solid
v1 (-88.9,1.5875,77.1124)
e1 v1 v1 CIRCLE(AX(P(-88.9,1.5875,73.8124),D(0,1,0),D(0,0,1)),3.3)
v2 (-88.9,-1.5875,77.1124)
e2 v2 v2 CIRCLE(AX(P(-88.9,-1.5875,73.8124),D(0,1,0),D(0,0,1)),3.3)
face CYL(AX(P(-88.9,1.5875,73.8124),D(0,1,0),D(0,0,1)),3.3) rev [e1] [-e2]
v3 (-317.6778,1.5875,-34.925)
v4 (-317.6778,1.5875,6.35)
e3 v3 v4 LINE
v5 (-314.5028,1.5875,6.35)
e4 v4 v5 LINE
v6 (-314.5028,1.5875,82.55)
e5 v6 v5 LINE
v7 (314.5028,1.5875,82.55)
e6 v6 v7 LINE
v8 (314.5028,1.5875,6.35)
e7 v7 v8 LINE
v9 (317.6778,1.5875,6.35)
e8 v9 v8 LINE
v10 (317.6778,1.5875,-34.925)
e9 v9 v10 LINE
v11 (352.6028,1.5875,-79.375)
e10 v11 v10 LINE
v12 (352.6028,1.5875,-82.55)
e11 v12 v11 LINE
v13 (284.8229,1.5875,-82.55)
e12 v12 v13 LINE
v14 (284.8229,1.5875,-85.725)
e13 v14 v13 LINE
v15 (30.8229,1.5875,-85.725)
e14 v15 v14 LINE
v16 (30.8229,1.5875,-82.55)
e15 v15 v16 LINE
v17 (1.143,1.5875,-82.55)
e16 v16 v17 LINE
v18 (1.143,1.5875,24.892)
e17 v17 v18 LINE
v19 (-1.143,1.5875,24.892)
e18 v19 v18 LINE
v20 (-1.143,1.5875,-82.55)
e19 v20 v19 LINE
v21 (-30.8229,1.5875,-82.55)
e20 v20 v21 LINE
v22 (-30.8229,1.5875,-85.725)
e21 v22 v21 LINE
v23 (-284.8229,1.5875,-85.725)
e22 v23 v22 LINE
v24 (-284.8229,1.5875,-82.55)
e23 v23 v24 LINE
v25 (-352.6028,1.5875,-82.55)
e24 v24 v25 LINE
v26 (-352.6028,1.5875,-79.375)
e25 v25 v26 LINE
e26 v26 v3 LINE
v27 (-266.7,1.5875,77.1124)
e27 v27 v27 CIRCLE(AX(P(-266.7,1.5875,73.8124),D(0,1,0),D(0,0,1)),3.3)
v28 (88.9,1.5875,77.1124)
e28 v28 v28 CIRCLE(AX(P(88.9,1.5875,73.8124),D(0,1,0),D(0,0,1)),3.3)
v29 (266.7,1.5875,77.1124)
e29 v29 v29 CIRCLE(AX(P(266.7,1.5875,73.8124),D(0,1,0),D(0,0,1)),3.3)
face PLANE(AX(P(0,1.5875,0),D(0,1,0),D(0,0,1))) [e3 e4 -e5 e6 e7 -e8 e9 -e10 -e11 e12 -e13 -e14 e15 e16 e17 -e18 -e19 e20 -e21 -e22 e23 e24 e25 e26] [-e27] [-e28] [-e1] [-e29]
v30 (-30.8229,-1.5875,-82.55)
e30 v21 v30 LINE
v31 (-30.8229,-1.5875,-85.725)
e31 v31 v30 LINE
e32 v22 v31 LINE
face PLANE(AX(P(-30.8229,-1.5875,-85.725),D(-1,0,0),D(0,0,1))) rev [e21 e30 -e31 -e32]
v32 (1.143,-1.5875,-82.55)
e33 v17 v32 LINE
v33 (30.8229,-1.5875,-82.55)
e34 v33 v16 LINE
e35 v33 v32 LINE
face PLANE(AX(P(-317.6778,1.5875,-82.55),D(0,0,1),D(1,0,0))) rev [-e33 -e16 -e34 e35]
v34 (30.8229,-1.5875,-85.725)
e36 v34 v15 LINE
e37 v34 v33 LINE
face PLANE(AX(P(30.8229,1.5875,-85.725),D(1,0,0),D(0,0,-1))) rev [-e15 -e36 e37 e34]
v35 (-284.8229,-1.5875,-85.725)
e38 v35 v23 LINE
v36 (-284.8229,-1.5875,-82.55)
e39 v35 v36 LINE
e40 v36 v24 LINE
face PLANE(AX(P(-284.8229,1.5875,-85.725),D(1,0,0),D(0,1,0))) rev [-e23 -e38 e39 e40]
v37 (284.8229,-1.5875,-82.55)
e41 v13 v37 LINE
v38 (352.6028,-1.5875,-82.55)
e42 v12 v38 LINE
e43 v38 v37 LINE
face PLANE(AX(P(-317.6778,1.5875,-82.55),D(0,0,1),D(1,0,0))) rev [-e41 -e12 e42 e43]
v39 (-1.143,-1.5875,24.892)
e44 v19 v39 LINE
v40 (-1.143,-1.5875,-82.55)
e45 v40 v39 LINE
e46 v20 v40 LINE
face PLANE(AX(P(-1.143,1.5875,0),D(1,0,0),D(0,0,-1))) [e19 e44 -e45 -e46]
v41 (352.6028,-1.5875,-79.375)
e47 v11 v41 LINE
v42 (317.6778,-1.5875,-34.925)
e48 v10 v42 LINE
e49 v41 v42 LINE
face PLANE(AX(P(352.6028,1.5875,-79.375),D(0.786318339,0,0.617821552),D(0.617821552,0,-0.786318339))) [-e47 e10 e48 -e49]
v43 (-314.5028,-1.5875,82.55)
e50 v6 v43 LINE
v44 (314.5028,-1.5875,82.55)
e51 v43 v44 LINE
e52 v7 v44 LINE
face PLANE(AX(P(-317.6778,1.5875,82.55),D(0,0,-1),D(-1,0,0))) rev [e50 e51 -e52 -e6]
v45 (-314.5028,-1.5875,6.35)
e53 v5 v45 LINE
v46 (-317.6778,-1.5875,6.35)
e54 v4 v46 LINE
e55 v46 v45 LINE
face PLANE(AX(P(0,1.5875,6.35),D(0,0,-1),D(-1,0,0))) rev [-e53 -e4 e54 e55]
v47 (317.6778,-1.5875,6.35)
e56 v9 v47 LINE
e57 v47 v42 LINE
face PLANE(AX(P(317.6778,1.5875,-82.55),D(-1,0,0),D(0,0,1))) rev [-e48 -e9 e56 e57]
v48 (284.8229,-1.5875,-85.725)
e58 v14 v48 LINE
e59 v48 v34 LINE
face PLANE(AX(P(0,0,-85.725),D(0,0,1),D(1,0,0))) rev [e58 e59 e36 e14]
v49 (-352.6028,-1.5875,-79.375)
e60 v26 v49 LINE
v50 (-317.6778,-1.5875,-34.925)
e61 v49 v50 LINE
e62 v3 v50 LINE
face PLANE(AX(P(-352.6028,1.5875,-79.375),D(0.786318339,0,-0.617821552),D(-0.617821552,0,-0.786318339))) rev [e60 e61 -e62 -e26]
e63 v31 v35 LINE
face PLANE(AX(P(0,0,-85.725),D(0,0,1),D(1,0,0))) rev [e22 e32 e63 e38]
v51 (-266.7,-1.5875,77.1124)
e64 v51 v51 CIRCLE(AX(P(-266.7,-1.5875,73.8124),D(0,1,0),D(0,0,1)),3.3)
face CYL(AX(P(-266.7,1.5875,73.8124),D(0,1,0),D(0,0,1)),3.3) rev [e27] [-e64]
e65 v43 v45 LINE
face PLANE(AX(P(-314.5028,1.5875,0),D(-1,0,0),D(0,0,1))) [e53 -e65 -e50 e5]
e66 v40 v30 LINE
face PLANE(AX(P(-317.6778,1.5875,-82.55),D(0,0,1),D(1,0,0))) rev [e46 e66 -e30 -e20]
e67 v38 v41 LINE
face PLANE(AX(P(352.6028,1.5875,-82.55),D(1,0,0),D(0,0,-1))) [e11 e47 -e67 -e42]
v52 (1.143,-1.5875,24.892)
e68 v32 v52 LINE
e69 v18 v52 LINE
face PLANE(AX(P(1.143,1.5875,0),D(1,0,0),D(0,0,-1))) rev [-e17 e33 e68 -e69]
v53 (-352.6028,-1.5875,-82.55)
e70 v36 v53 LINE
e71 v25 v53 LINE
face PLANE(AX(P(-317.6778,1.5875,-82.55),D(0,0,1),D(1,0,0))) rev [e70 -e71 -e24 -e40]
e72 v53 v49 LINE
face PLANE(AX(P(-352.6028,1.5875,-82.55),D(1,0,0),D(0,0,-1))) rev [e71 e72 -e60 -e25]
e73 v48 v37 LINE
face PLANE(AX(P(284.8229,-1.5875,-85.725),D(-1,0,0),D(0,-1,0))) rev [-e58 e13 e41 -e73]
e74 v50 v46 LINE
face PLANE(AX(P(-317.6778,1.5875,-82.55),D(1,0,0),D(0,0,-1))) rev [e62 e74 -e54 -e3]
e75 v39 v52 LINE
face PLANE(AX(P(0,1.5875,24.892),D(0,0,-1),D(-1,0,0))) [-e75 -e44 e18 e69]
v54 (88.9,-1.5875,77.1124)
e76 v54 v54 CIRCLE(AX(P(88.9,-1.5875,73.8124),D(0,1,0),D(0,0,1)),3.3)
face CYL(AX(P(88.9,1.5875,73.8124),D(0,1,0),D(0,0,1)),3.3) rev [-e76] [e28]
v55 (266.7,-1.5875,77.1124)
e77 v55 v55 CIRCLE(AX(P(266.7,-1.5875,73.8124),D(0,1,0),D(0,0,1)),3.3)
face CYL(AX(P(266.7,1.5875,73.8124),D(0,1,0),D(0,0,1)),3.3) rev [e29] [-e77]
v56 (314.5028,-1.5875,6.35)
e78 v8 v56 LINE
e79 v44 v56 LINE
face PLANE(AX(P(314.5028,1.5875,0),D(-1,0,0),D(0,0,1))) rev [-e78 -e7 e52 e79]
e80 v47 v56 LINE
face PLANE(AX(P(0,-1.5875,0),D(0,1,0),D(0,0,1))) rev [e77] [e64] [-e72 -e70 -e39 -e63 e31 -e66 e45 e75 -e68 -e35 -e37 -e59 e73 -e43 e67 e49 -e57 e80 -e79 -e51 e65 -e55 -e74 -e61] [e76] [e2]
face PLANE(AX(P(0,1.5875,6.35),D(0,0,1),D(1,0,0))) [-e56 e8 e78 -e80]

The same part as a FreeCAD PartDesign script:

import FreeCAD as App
import Part
import Sketcher
Q = App.Units.Quantity

doc = App.newDocument("Part")
body = doc.addObject("PartDesign::Body", "Body")

# Sketch on XZ plane
sketch1 = body.newObject("Sketcher::SketchObject", "Sketch")
sketch1.AttachmentSupport = (doc.getObject("XZ_Plane"), [""])
sketch1.MapMode = "FlatFace"
sketch1.addGeometry([
    Part.LineSegment(App.Vector(-318, -83, 0), App.Vector(-318, 83, 0)),
    Part.LineSegment(App.Vector(-318, 83, 0), App.Vector(318, 83, 0)),
    Part.LineSegment(App.Vector(318, 83, 0), App.Vector(318, -83, 0)),
    Part.LineSegment(App.Vector(318, -83, 0), App.Vector(-318, -83, 0)),
], False)
sketch1.addConstraint([
    Sketcher.Constraint("Coincident", 0, 2, 1, 1),
    Sketcher.Constraint("Coincident", 1, 2, 2, 1),
    Sketcher.Constraint("Coincident", 2, 2, 3, 1),
    Sketcher.Constraint("Coincident", 3, 2, 0, 1),
    Sketcher.Constraint("Vertical", 0),
    Sketcher.Constraint("Horizontal", 1),
    Sketcher.Constraint("Vertical", 2),
    Sketcher.Constraint("Horizontal", 3),
    Sketcher.Constraint("Symmetric", 0, 2, 2, 2, -1, 1),
    Sketcher.Constraint("DistanceY", 0, 1, 0, 2, Q("6.5 in")),
    Sketcher.Constraint("DistanceX", 1, 1, 1, 2, Q("25.014 in")),
])
pad1 = body.newObject("PartDesign::Pad", "Pad")
pad1.Profile = sketch1
pad1.Length = Q("0.125 in")
pad1.Midplane = True

# Sketch on XY plane
sketch2 = body.newObject("Sketcher::SketchObject", "Sketch001")
sketch2.AttachmentSupport = (doc.getObject("XY_Plane"), [""])
sketch2.MapMode = "FlatFace"
sketch2.AttachmentOffset = App.Placement(App.Vector(0, 0, -3.25 * 25.4), App.Rotation())
sketch2.addGeometry([
    Part.LineSegment(App.Vector(284.8, 1.6, 0), App.Vector(284.8, -1.6, 0)),  # 0
    Part.LineSegment(App.Vector(284.8, -1.6, 0), App.Vector(30.8, -1.6, 0)),  # 1
    Part.LineSegment(App.Vector(30.8, -1.6, 0), App.Vector(30.8, 1.6, 0)),  # 2
    Part.LineSegment(App.Vector(30.8, 1.6, 0), App.Vector(284.8, 1.6, 0)),  # 3
    Part.LineSegment(App.Vector(-30.8, 1.6, 0), App.Vector(-30.8, -1.6, 0)),  # 4
    Part.LineSegment(App.Vector(-30.8, -1.6, 0), App.Vector(-284.8, -1.6, 0)),  # 5
    Part.LineSegment(App.Vector(-284.8, -1.6, 0), App.Vector(-284.8, 1.6, 0)),  # 6
    Part.LineSegment(App.Vector(-284.8, 1.6, 0), App.Vector(-30.8, 1.6, 0)),  # 7
], False)
sketch2.addConstraint([
    Sketcher.Constraint("Coincident", 0, 2, 1, 1),
    Sketcher.Constraint("Coincident", 1, 2, 2, 1),
    Sketcher.Constraint("Coincident", 2, 2, 3, 1),
    Sketcher.Constraint("Coincident", 3, 2, 0, 1),
    Sketcher.Constraint("Coincident", 4, 2, 5, 1),
    Sketcher.Constraint("Coincident", 5, 2, 6, 1),
    Sketcher.Constraint("Coincident", 6, 2, 7, 1),
    Sketcher.Constraint("Coincident", 7, 2, 4, 1),
    Sketcher.Constraint("Vertical", 0),
    Sketcher.Constraint("Horizontal", 1),
    Sketcher.Constraint("Vertical", 2),
    Sketcher.Constraint("Horizontal", 3),
    Sketcher.Constraint("Vertical", 4),
    Sketcher.Constraint("Horizontal", 5),
    Sketcher.Constraint("Vertical", 6),
    Sketcher.Constraint("Horizontal", 7),
    Sketcher.Constraint("Symmetric", 2, 2, 4, 2, -1, 1),
    Sketcher.Constraint("Symmetric", 0, 2, 6, 2, -1, 1),
    Sketcher.Constraint("Horizontal", 1, 2, 4, 2),
    Sketcher.Constraint("DistanceX", 1, 2, 1, 1, Q("10 in")),
    Sketcher.Constraint("DistanceY", 0, 2, 0, 1, Q("0.125 in")),
    Sketcher.Constraint("DistanceX", 4, 2, 1, 2, Q("2.427 in")),
])
pad2 = body.newObject("PartDesign::Pad", "Pad001")
pad2.Profile = sketch2
pad2.Length = Q("0.125 in")
pad2.Reversed = True

# Sketch on XZ plane
sketch3 = body.newObject("Sketcher::SketchObject", "Sketch002")
sketch3.AttachmentSupport = (doc.getObject("XZ_Plane"), [""])
sketch3.MapMode = "FlatFace"
sketch3.AttachmentOffset = App.Placement(App.Vector(0, 0, 0.0625 * 25.4), App.Rotation())
sketch3.addGeometry([
    Part.LineSegment(App.Vector(317.7, -82.5, 0), App.Vector(352.6, -82.5, 0)),
    Part.LineSegment(App.Vector(352.6, -82.5, 0), App.Vector(352.6, -79.4, 0)),
    Part.LineSegment(App.Vector(352.6, -79.4, 0), App.Vector(317.7, -34.9, 0)),
    Part.LineSegment(App.Vector(317.7, -34.9, 0), App.Vector(317.7, -82.5, 0)),
], False)
sketch3.addConstraint([
    Sketcher.Constraint("Coincident", 0, 2, 1, 1),
    Sketcher.Constraint("Coincident", 1, 2, 2, 1),
    Sketcher.Constraint("Coincident", 2, 2, 3, 1),
    Sketcher.Constraint("Coincident", 3, 2, 0, 1),
    Sketcher.Constraint("Horizontal", 0),
    Sketcher.Constraint("Vertical", 1),
    Sketcher.Constraint("Vertical", 3),
    Sketcher.Constraint("DistanceX", 0, 1, 0, 2, Q("1.375 in")),
    Sketcher.Constraint("DistanceY", 1, 1, 1, 2, Q("0.125 in")),
    Sketcher.Constraint("DistanceY", 3, 2, 3, 1, Q("1.875 in")),
    Sketcher.Constraint("DistanceY", 0, 2, -1, 1, Q("3.25 in")),
    Sketcher.Constraint("DistanceX", -1, 1, 0, 2, Q("13.882 in")),
])
pad3 = body.newObject("PartDesign::Pad", "Pad002")
pad3.Profile = sketch3
pad3.Length = Q("0.125 in")
pad3.Reversed = True
doc.recompute()

mirrored = body.newObject("PartDesign::Mirrored", "Mirrored")
mirrored.Originals = [pad3]
mirrored.MirrorPlane = (doc.getObject("YZ_Plane"), [""])
body.Tip = mirrored

# Sketch on XZ plane
sketch4 = body.newObject("Sketcher::SketchObject", "Sketch003")
sketch4.AttachmentSupport = (doc.getObject("XZ_Plane"), [""])
sketch4.MapMode = "FlatFace"
sketch4.AttachmentOffset = App.Placement(App.Vector(0, 0, 0.0625 * 25.4), App.Rotation())
sketch4.addGeometry([
    Part.LineSegment(App.Vector(314.5, 82.5, 0), App.Vector(314.5, 6.3, 0)),  # 0
    Part.LineSegment(App.Vector(314.5, 6.3, 0), App.Vector(317.7, 6.3, 0)),  # 1
    Part.LineSegment(App.Vector(317.7, 6.3, 0), App.Vector(317.7, 82.5, 0)),  # 2
    Part.LineSegment(App.Vector(317.7, 82.5, 0), App.Vector(314.5, 82.5, 0)),  # 3
    Part.LineSegment(App.Vector(-317.7, 82.5, 0), App.Vector(-317.7, 6.3, 0)),  # 4
    Part.LineSegment(App.Vector(-317.7, 6.3, 0), App.Vector(-314.5, 6.3, 0)),  # 5
    Part.LineSegment(App.Vector(-314.5, 6.3, 0), App.Vector(-314.5, 82.5, 0)),  # 6
    Part.LineSegment(App.Vector(-314.5, 82.5, 0), App.Vector(-317.7, 82.5, 0)),  # 7
    Part.LineSegment(App.Vector(-1.1, 24.9, 0), App.Vector(-1.1, -82.5, 0)),  # 8
    Part.LineSegment(App.Vector(-1.1, -82.5, 0), App.Vector(1.1, -82.5, 0)),  # 9
    Part.LineSegment(App.Vector(1.1, -82.5, 0), App.Vector(1.1, 24.9, 0)),  # 10
    Part.LineSegment(App.Vector(1.1, 24.9, 0), App.Vector(-1.1, 24.9, 0)),  # 11
], False)
sketch4.addConstraint([
    Sketcher.Constraint("Coincident", 0, 2, 1, 1),
    Sketcher.Constraint("Coincident", 1, 2, 2, 1),
    Sketcher.Constraint("Coincident", 2, 2, 3, 1),
    Sketcher.Constraint("Coincident", 3, 2, 0, 1),
    Sketcher.Constraint("Coincident", 4, 2, 5, 1),
    Sketcher.Constraint("Coincident", 5, 2, 6, 1),
    Sketcher.Constraint("Coincident", 6, 2, 7, 1),
    Sketcher.Constraint("Coincident", 7, 2, 4, 1),
    Sketcher.Constraint("Coincident", 8, 2, 9, 1),
    Sketcher.Constraint("Coincident", 9, 2, 10, 1),
    Sketcher.Constraint("Coincident", 10, 2, 11, 1),
    Sketcher.Constraint("Coincident", 11, 2, 8, 1),
    Sketcher.Constraint("Vertical", 0),
    Sketcher.Constraint("Horizontal", 1),
    Sketcher.Constraint("Vertical", 2),
    Sketcher.Constraint("Horizontal", 3),
    Sketcher.Constraint("Vertical", 4),
    Sketcher.Constraint("Horizontal", 5),
    Sketcher.Constraint("Vertical", 6),
    Sketcher.Constraint("Horizontal", 7),
    Sketcher.Constraint("Vertical", 8),
    Sketcher.Constraint("Horizontal", 9),
    Sketcher.Constraint("Vertical", 10),
    Sketcher.Constraint("Horizontal", 11),
    Sketcher.Constraint("Symmetric", 1, 2, 4, 2, -2),
    Sketcher.Constraint("Symmetric", 3, 2, 6, 2, -2),
    Sketcher.Constraint("DistanceY", 0, 2, 0, 1, Q("3 in")),
    Sketcher.Constraint("DistanceX", 9, 1, 9, 2, Q("0.09 in")),
    Sketcher.Constraint("DistanceY", 8, 2, 8, 1, Q("4.23 in")),
    Sketcher.Constraint("DistanceY", 8, 2, 5, 2, Q("3.5 in")),
    Sketcher.Constraint("DistanceX", 1, 1, 1, 2, Q("0.125 in")),
    Sketcher.Constraint("DistanceY", -1, 1, 0, 2, Q("0.25 in")),
    Sketcher.Constraint("DistanceX", -1, 1, 0, 2, Q("12.382 in")),
    Sketcher.Constraint("DistanceX", 8, 2, -1, 1, Q("0.045 in")),
])
pocket1 = body.newObject("PartDesign::Pocket", "Pocket")
pocket1.Profile = sketch4
pocket1.Type = "ThroughAll"

# Sketch on XZ plane
sketch5 = body.newObject("Sketcher::SketchObject", "Sketch004")
sketch5.AttachmentSupport = (doc.getObject("XZ_Plane"), [""])
sketch5.MapMode = "FlatFace"
sketch5.AttachmentOffset = App.Placement(App.Vector(0, 0, -0.0625 * 25.4), App.Rotation())
sketch5.addGeometry(Part.Circle(App.Vector(266.7, 73.8, 0), App.Vector(0, 0, 1), 3.3), False)
sketch5.addConstraint([
    Sketcher.Constraint("DistanceX", -1, 1, 0, 3, Q("10.5 in")),
    Sketcher.Constraint("Diameter", 0, Q("6.6 mm")),
    Sketcher.Constraint("DistanceY", -1, 1, 0, 3, Q("2.906 in")),
])
doc.recompute()
hole = body.newObject("PartDesign::Hole", "Hole")
hole.Profile = sketch5
hole.ThreadType = "None"
hole.Diameter = 6.6
hole.DepthType = "ThroughAll"
hole.Reversed = True
doc.recompute()

linearpattern = body.newObject("PartDesign::LinearPattern", "LinearPattern")
linearpattern.Originals = [hole]
linearpattern.Direction = (doc.getObject("X_Axis"), [""])
linearpattern.Mode = "offset"
linearpattern.Offset = Q("7 in")
linearpattern.Occurrences = 4
linearpattern.Reversed = True
body.Tip = linearpattern

doc.recompute()
